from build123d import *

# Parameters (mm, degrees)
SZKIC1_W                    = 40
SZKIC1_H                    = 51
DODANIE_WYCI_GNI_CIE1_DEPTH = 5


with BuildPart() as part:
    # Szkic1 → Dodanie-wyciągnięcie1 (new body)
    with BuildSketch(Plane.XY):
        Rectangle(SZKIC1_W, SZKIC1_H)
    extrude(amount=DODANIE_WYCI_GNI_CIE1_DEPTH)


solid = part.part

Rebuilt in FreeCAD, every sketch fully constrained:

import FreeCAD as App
import Part
import Sketcher

V = App.Vector

doc = App.newDocument("Part")
body = doc.addObject("PartDesign::Body", "Body")

sketch1 = doc.addObject("Sketcher::SketchObject", "Sketch")
body.addObject(sketch1)
sketch1.AttachmentSupport = (doc.XY_Plane, [""])
sketch1.MapMode = "FlatFace"
sketch1.addGeometry([
    Part.LineSegment(V(-20, 26, 0), V(-20, -26, 0)),
    Part.LineSegment(V(-20, -26, 0), V(20, -26, 0)),
    Part.LineSegment(V(20, -26, 0), V(20, 26, 0)),
    Part.LineSegment(V(20, 26, 0), V(-20, 26, 0)),
], False)
sketch1.addConstraint([
    Sketcher.Constraint("Coincident", 0, 2, 1, 1),
    Sketcher.Constraint("Coincident", 1, 2, 2, 1),
    Sketcher.Constraint("Coincident", 2, 2, 3, 1),
    Sketcher.Constraint("Coincident", 3, 2, 0, 1),
    Sketcher.Constraint("Vertical", 0),
    Sketcher.Constraint("Horizontal", 1),
    Sketcher.Constraint("Vertical", 2),
    Sketcher.Constraint("Horizontal", 3),
    Sketcher.Constraint("Symmetric", 0, 2, 2, 2, -1, 1),
    Sketcher.Constraint("DistanceX", 1, 1, 1, 2, 40.0),
    Sketcher.Constraint("DistanceY", 0, 2, 0, 1, 51.0),
])
pad1 = doc.addObject("PartDesign::Pad", "Pad")
body.addObject(pad1)
pad1.Profile = sketch1
pad1.Length = 5

doc.recompute()
